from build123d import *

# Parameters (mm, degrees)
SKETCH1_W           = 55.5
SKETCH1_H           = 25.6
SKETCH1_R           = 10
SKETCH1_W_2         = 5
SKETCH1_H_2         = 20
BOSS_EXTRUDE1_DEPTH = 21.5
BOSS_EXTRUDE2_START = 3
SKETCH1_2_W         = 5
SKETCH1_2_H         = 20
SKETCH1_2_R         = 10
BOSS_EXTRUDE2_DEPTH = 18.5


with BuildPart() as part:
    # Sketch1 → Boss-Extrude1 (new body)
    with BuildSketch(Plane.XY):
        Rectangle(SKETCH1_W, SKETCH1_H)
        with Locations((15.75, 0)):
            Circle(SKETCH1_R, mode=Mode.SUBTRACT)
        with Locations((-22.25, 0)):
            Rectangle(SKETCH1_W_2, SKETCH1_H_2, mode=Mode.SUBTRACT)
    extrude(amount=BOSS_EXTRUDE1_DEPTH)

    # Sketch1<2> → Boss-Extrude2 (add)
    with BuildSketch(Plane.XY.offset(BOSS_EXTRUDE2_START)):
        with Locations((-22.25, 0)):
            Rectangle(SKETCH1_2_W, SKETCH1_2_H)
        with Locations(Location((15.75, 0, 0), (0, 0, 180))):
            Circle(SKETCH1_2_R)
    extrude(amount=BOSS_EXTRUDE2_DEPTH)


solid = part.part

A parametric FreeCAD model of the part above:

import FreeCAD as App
import Part
import Sketcher

V = App.Vector
Q = App.Units.Quantity


def add_polygon(sketch, points):
    """Adds a closed chain of lines whose ends are joined by coincident constraints."""
    first, n = sketch.GeometryCount, len(points)
    for a, b in zip(points, points[1:] + points[:1]):
        sketch.addGeometry(Part.LineSegment(App.Vector(*a, 0), App.Vector(*b, 0)), False)
    for i in range(n):
        sketch.addConstraint(Sketcher.Constraint("Coincident", first + i, 2, first + (i + 1) % n, 1))

doc = App.newDocument("Part")
body = doc.addObject("PartDesign::Body", "Body")

# Sketch on XY plane
sketch1 = doc.addObject("Sketcher::SketchObject", "Sketch")
body.addObject(sketch1)
sketch1.AttachmentSupport = (doc.XY_Plane, [""])
sketch1.MapMode = "FlatFace"
add_polygon(sketch1, [(-28, 13), (-28, -13), (28, -13), (28, 13)])  # lines 0-3
add_polygon(sketch1, [(-20, -10), (-25, -10), (-25, 10), (-20, 10)])  # lines 4-7
sketch1.addGeometry(Part.Circle(V(16, 0, 0), V(0, 0, 1), 10), False)  # 8
sketch1.addConstraint([
    Sketcher.Constraint("Vertical", 0),
    Sketcher.Constraint("Horizontal", 1),
    Sketcher.Constraint("Vertical", 2),
    Sketcher.Constraint("Horizontal", 3),
    Sketcher.Constraint("Horizontal", 4),
    Sketcher.Constraint("Vertical", 5),
    Sketcher.Constraint("Horizontal", 6),
    Sketcher.Constraint("Vertical", 7),
    Sketcher.Constraint("Symmetric", 0, 2, 2, 2, -1, 1),
    Sketcher.Constraint("PointOnObject", 8, 3, -1),
    Sketcher.Constraint("Diameter", 8, Q("20 mm")),
    Sketcher.Constraint("DistanceX", 4, 2, 4, 1, Q("5 mm")),
    Sketcher.Constraint("DistanceY", 5, 1, 5, 2, Q("20 mm")),
    Sketcher.Constraint("DistanceX", 1, 1, 1, 2, Q("55.5 mm")),
    Sketcher.Constraint("DistanceY", 0, 2, 0, 1, Q("25.6 mm")),
    Sketcher.Constraint("DistanceY", 4, 2, -1, 1, Q("10 mm")),
    Sketcher.Constraint("DistanceX", 8, 3, 1, 2, Q("12 mm")),
    Sketcher.Constraint("DistanceX", 0, 2, 4, 2, Q("3 mm")),
])
pad1 = doc.addObject("PartDesign::Pad", "Pad")
body.addObject(pad1)
pad1.Profile = sketch1
pad1.Length = 21.5

# Sketch on XY plane
sketch2 = doc.addObject("Sketcher::SketchObject", "Sketch001")
body.addObject(sketch2)
sketch2.AttachmentSupport = (doc.XY_Plane, [""])
sketch2.MapMode = "FlatFace"
sketch2.AttachmentOffset = App.Placement(V(0, 0, 3), App.Rotation())
add_polygon(sketch2, [(-25, 10), (-25, -10), (-20, -10), (-20, 10)])  # lines 0-3
sketch2.addGeometry(Part.Circle(V(16, 0, 0), V(0, 0, 1), 10), False)  # 4
sketch2.addConstraint([
    Sketcher.Constraint("Vertical", 0),
    Sketcher.Constraint("Horizontal", 1),
    Sketcher.Constraint("Vertical", 2),
    Sketcher.Constraint("Horizontal", 3),
    Sketcher.Constraint("PointOnObject", 4, 3, -1),
    Sketcher.Constraint("Diameter", 4, Q("20 mm")),
    Sketcher.Constraint("DistanceX", 1, 1, 1, 2, Q("5 mm")),
    Sketcher.Constraint("DistanceY", 0, 2, 0, 1, Q("20 mm")),
    Sketcher.Constraint("DistanceY", 0, 2, -1, 1, Q("10 mm")),
    Sketcher.Constraint("DistanceX", 0, 2, 4, 3, Q("40.5 mm")),
    Sketcher.Constraint("DistanceX", -1, 1, 4, 3, Q("15.75 mm")),
])
pad2 = doc.addObject("PartDesign::Pad", "Pad001")
body.addObject(pad2)
pad2.Profile = sketch2
pad2.Length = 18.5

doc.recompute()
